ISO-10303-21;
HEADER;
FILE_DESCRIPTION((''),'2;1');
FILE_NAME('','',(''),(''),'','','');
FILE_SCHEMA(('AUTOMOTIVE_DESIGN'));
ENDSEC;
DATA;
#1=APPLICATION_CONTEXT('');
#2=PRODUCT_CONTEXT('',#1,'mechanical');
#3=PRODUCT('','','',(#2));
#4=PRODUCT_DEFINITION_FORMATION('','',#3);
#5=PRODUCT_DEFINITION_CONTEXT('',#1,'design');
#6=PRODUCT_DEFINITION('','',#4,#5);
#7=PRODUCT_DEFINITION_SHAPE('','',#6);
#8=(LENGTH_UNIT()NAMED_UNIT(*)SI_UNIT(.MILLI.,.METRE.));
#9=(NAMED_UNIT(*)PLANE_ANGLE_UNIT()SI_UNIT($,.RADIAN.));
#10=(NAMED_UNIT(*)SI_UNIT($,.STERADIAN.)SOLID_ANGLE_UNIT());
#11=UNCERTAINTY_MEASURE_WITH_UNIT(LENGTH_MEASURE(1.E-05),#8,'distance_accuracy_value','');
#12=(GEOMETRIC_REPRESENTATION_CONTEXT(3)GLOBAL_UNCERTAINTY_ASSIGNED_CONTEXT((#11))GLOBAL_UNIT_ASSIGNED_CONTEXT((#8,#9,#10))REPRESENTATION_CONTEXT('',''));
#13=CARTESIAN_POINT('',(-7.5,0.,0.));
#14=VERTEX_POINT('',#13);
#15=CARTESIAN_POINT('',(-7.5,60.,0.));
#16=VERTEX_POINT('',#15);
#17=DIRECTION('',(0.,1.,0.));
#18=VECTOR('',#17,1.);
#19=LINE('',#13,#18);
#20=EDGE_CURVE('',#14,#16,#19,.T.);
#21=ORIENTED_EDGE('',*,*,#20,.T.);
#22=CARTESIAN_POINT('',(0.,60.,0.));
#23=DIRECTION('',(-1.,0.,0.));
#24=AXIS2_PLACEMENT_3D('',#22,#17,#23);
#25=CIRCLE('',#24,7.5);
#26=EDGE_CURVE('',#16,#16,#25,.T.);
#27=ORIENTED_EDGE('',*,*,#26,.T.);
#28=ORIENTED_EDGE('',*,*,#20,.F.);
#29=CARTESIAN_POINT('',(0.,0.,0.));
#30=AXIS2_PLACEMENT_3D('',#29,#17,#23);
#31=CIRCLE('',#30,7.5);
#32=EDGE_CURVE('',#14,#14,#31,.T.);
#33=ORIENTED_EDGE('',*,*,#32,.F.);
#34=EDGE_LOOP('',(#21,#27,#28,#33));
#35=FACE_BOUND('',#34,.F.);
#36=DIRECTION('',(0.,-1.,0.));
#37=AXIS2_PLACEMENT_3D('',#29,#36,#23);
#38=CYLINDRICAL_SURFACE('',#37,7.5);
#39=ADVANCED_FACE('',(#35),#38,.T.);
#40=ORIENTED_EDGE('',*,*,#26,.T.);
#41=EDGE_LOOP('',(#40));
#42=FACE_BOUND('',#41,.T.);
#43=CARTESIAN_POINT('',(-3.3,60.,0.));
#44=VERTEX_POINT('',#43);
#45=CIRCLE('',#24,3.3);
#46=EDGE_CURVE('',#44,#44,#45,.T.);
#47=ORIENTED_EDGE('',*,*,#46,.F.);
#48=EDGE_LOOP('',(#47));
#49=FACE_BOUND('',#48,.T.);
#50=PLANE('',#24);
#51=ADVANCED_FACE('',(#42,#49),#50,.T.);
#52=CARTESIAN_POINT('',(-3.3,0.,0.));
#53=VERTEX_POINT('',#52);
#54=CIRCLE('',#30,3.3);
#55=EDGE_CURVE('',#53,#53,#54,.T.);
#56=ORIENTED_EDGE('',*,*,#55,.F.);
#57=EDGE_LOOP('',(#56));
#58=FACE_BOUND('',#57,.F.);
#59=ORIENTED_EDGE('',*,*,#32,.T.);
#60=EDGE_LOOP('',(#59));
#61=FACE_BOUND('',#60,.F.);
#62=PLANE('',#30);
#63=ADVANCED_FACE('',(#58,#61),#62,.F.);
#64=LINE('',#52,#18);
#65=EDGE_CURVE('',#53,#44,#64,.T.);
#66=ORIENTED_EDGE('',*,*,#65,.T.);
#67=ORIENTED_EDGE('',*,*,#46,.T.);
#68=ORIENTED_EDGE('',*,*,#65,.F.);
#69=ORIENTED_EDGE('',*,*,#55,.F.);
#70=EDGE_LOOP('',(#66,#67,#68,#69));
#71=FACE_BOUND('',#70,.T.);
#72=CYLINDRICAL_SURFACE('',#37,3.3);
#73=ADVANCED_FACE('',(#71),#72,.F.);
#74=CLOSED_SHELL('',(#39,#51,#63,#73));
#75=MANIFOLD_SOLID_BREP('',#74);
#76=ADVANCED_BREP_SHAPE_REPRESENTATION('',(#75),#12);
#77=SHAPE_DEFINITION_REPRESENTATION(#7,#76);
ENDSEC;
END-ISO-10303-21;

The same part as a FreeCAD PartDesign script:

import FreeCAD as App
import Part
import Sketcher
Q = App.Units.Quantity

doc = App.newDocument("Part")
params = doc.addObject("Spreadsheet::Sheet", "Params")
for row, (alias, value) in enumerate([
    ("sketch1_diameter", "15 mm"),
    ("sketch1_diameter2", "6.6 mm"),
    ("pad1_length", "60 mm"),
], start=1):
    params.set(f"A{row}", alias)
    params.set(f"B{row}", "=" + value)
    params.setAlias(f"B{row}", alias)

body = doc.addObject("PartDesign::Body", "Body")

# Sketch on XZ plane
sketch1 = body.newObject("Sketcher::SketchObject", "Sketch")
sketch1.AttachmentSupport = (doc.getObject("XZ_Plane"), [""])
sketch1.MapMode = "FlatFace"
sketch1.addGeometry([
    Part.Circle(App.Vector(0, 0, 0), App.Vector(0, 0, 1), 7.5),
    Part.Circle(App.Vector(0, 0, 0), App.Vector(0, 0, 1), 3.3),
], False)
sketch1.addConstraint([
    Sketcher.Constraint("Coincident", 0, 3, -1, 1),
    Sketcher.Constraint("Coincident", 1, 3, -1, 1),
    Sketcher.Constraint("Diameter", 0, Q("15 mm")),
    Sketcher.Constraint("Diameter", 1, Q("6.6 mm")),
])
sketch1.setExpression("Constraints[2]", "Params.sketch1_diameter")
sketch1.setExpression("Constraints[3]", "Params.sketch1_diameter2")
pad1 = body.newObject("PartDesign::Pad", "Pad")
pad1.Profile = sketch1
pad1.setExpression("Length", "Params.pad1_length")
pad1.Reversed = True

doc.recompute()
